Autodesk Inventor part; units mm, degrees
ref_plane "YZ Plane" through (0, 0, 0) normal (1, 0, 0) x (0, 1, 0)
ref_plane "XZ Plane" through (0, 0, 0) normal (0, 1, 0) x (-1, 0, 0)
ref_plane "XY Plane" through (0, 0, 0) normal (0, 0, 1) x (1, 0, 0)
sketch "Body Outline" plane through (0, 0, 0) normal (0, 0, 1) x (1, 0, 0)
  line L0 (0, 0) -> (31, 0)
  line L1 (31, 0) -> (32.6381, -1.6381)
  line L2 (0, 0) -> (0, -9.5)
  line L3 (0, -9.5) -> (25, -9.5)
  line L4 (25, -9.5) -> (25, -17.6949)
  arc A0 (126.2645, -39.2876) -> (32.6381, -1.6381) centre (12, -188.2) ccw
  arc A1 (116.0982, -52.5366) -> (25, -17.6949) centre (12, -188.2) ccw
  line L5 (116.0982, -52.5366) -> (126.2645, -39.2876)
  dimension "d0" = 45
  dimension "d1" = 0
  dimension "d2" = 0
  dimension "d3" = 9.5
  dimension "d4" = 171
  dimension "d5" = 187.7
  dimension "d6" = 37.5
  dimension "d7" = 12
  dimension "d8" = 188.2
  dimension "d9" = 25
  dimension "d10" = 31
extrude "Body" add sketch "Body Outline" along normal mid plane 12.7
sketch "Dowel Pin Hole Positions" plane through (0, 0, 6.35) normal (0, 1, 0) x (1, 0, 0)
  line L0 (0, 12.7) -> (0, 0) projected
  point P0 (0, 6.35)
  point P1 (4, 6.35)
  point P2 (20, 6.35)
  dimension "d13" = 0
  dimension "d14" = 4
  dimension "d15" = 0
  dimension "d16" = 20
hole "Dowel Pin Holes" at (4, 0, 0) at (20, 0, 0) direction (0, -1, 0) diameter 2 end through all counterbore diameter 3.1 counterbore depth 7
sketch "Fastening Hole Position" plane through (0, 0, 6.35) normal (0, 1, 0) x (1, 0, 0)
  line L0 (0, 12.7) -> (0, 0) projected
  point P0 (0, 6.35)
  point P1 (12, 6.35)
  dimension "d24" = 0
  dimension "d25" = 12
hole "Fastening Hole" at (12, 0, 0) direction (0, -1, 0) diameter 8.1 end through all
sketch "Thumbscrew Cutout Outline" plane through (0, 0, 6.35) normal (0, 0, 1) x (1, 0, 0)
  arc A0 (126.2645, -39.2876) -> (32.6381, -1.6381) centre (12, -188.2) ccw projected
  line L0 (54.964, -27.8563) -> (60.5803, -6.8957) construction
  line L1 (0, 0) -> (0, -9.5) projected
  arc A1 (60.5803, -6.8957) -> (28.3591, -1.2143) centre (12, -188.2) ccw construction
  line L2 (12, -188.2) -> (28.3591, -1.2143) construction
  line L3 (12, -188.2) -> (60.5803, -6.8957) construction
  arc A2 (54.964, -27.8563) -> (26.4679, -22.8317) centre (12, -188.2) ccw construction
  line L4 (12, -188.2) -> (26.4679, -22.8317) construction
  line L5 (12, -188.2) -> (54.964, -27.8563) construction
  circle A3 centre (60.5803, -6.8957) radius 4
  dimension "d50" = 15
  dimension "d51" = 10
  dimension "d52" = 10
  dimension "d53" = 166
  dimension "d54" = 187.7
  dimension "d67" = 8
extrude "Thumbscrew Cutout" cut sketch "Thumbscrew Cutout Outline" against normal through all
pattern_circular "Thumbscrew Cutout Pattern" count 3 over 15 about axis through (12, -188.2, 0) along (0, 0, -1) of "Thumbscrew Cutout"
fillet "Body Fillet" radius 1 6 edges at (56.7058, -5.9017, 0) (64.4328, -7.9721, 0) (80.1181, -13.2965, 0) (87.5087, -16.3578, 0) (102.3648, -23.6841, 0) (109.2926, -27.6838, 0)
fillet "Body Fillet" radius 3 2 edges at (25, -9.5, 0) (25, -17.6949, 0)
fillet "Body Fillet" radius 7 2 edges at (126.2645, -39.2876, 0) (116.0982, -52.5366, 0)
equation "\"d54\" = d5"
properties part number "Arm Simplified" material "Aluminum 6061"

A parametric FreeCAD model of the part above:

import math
import FreeCAD as App
import Part
import Sketcher
Q = App.Units.Quantity


def edges_at(feature, points):
    """Names of the edges that pass closest to the given points."""
    edges = feature.Shape.Edges
    near = lambda p: min(range(len(edges)), key=lambda i: edges[i].distToShape(Part.Vertex(*p))[0])
    return sorted({f"Edge{near(p) + 1}" for p in points})

doc = App.newDocument("Part")
body = doc.addObject("PartDesign::Body", "Body")

sketch1 = doc.addObject("Sketcher::SketchObject", "Sketch")
body.addObject(sketch1)
sketch1.AttachmentSupport = (doc.XY_Plane, [""])
sketch1.MapMode = "FlatFace"
sketch1.addGeometry([
    Part.LineSegment(App.Vector(31, 0, 0), App.Vector(0, 0, 0)),
    Part.LineSegment(App.Vector(0, 0, 0), App.Vector(0, -9.5, 0)),
    Part.LineSegment(App.Vector(0, -9.5, 0), App.Vector(25, -9.5, 0)),
    Part.LineSegment(App.Vector(25, -9.5, 0), App.Vector(25, -17.7, 0)),
    Part.ArcOfCircle(Part.Circle(App.Vector(12, -188.2, 0), App.Vector(0, 0, 1), 171), math.radians(52), math.radians(86)),
    Part.LineSegment(App.Vector(116.1, -52.5, 0), App.Vector(126.3, -39.3, 0)),
    Part.ArcOfCircle(Part.Circle(App.Vector(12, -188.2, 0), App.Vector(0, 0, 1), 187.7), math.radians(53), math.radians(84)),
    Part.LineSegment(App.Vector(32.6, -1.6, 0), App.Vector(31, 0, 0)),
], False)
sketch1.addConstraint([
    Sketcher.Constraint("Coincident", 0, 2, 1, 1),
    Sketcher.Constraint("Coincident", 1, 2, 2, 1),
    Sketcher.Constraint("Coincident", 2, 2, 3, 1),
    Sketcher.Constraint("Coincident", 3, 2, 4, 2),
    Sketcher.Constraint("Coincident", 4, 1, 5, 1),
    Sketcher.Constraint("Coincident", 5, 2, 6, 1),
    Sketcher.Constraint("Coincident", 6, 2, 7, 1),
    Sketcher.Constraint("Coincident", 7, 2, 0, 1),
    Sketcher.Constraint("Horizontal", 0),
    Sketcher.Constraint("Vertical", 1),
    Sketcher.Constraint("Horizontal", 2),
    Sketcher.Constraint("Vertical", 3),
    Sketcher.Constraint("Coincident", 0, 2, -1, 1),
    Sketcher.Constraint("Coincident", 6, 3, 4, 3),
    Sketcher.Constraint("Radius", 4, Q("171 mm")),
    Sketcher.Constraint("Radius", 6, Q("187.7 mm")),
    Sketcher.Constraint("DistanceX", 0, 2, 0, 1, Q("31 mm")),
    Sketcher.Constraint("DistanceX", 2, 1, 2, 2, Q("25 mm")),
    Sketcher.Constraint("DistanceY", 1, 2, 1, 1, Q("9.5 mm")),
    Sketcher.Constraint("DistanceX", -1, 1, 4, 3, Q("12 mm")),
    Sketcher.Constraint("DistanceY", 4, 3, -1, 1, Q("188.2 mm")),
    Sketcher.Constraint("Angle", 7, Q("135 deg")),
    Sketcher.Constraint("Angle", 5, Q("52.5 deg")),
    Sketcher.Constraint("DistanceX", 6, 2, 4, 1, Q("83.46 mm")),
])
pad1 = doc.addObject("PartDesign::Pad", "Pad")
body.addObject(pad1)
pad1.Profile = sketch1
pad1.Length = 12.7
pad1.Midplane = True

sketch2 = doc.addObject("Sketcher::SketchObject", "Sketch001")
body.addObject(sketch2)
sketch2.AttachmentSupport = (doc.XZ_Plane, [""])
sketch2.MapMode = "FlatFace"
sketch2.addGeometry([
    Part.Circle(App.Vector(4, 0, 0), App.Vector(0, 0, 1), 1),
    Part.Circle(App.Vector(20, 0, 0), App.Vector(0, 0, 1), 1),
], False)
sketch2.addConstraint([
    Sketcher.Constraint("Equal", 0, 1),
    Sketcher.Constraint("PointOnObject", 0, 3, -1),
    Sketcher.Constraint("PointOnObject", 1, 3, -1),
    Sketcher.Constraint("Diameter", 0, Q("2 mm")),
    Sketcher.Constraint("DistanceX", -1, 1, 0, 3, Q("4 mm")),
    Sketcher.Constraint("DistanceX", -1, 1, 1, 3, Q("20 mm")),
])
doc.recompute()
hole = doc.addObject("PartDesign::Hole", "Hole")
body.addObject(hole)
hole.Profile = sketch2
hole.ThreadType = "None"
hole.Diameter = 2
hole.DepthType = "ThroughAll"
hole.HoleCutType = "Counterbore"
hole.HoleCutDiameter = 3.1
hole.HoleCutDepth = 7
hole.Reversed = True

sketch3 = doc.addObject("Sketcher::SketchObject", "Sketch002")
body.addObject(sketch3)
sketch3.AttachmentSupport = (doc.XZ_Plane, [""])
sketch3.MapMode = "FlatFace"
sketch3.addGeometry(Part.Circle(App.Vector(12, 0, 0), App.Vector(0, 0, 1), 4), False)
sketch3.addConstraint([
    Sketcher.Constraint("PointOnObject", 0, 3, -1),
    Sketcher.Constraint("Diameter", 0, Q("8.1 mm")),
    Sketcher.Constraint("DistanceX", -1, 1, 0, 3, Q("12 mm")),
])
doc.recompute()
hole2 = doc.addObject("PartDesign::Hole", "Hole001")
body.addObject(hole2)
hole2.Profile = sketch3
hole2.ThreadType = "None"
hole2.Diameter = 8.1
hole2.DepthType = "ThroughAll"
hole2.Reversed = True

sketch4 = doc.addObject("Sketcher::SketchObject", "Sketch003")
body.addObject(sketch4)
sketch4.AttachmentSupport = (doc.XY_Plane, [""])
sketch4.MapMode = "FlatFace"
sketch4.AttachmentOffset = App.Placement(App.Vector(0, 0, 6.35), App.Rotation())
sketch4.addGeometry(Part.Circle(App.Vector(60.6, -6.9, 0), App.Vector(0, 0, 1), 4), False)
sketch4.addConstraint([
    Sketcher.Constraint("Diameter", 0, Q("8 mm")),
    Sketcher.Constraint("DistanceX", -1, 1, 0, 3, Q("60.5803 mm")),
    Sketcher.Constraint("DistanceY", 0, 3, -1, 1, Q("6.8957 mm")),
])
pocket1 = doc.addObject("PartDesign::Pocket", "Pocket")
body.addObject(pocket1)
pocket1.Profile = sketch4
pocket1.Type = "ThroughAll"
doc.recompute()

datumline = doc.addObject("PartDesign::Line", "DatumLine")
body.addObject(datumline)
datumline.Placement = App.Placement(App.Vector(12, -188.2, 0), App.Rotation(App.Vector(0, 0, 1), App.Vector(0, 0, 1)))
polarpattern = doc.addObject("PartDesign::PolarPattern", "PolarPattern")
body.addObject(polarpattern)
polarpattern.Originals = [pocket1]
polarpattern.Axis = (datumline, [""])
polarpattern.Angle = 15
polarpattern.Occurrences = 3
polarpattern.Reversed = True
body.Tip = polarpattern
doc.recompute()

fillet = doc.addObject("PartDesign::Fillet", "Fillet")
body.addObject(fillet)
fillet.Base = (polarpattern, edges_at(polarpattern, [
    (56.706, -5.902, 0),
    (64.433, -7.972, 0),
    (80.118, -13.296, 0),
    (87.509, -16.358, 0),
    (102.365, -23.684, 0),
    (109.293, -27.684, 0),
]))
fillet.Radius = 1
doc.recompute()

fillet2 = doc.addObject("PartDesign::Fillet", "Fillet001")
body.addObject(fillet2)
fillet2.Base = (fillet, edges_at(fillet, [(25, -9.5, 0), (25, -17.695, 0)]))
fillet2.Radius = 3
doc.recompute()

fillet3 = doc.addObject("PartDesign::Fillet", "Fillet002")
body.addObject(fillet3)
fillet3.Base = (fillet2, edges_at(fillet2, [(126.264, -39.288, 0), (116.098, -52.537, 0)]))
fillet3.Radius = 7

doc.recompute()
